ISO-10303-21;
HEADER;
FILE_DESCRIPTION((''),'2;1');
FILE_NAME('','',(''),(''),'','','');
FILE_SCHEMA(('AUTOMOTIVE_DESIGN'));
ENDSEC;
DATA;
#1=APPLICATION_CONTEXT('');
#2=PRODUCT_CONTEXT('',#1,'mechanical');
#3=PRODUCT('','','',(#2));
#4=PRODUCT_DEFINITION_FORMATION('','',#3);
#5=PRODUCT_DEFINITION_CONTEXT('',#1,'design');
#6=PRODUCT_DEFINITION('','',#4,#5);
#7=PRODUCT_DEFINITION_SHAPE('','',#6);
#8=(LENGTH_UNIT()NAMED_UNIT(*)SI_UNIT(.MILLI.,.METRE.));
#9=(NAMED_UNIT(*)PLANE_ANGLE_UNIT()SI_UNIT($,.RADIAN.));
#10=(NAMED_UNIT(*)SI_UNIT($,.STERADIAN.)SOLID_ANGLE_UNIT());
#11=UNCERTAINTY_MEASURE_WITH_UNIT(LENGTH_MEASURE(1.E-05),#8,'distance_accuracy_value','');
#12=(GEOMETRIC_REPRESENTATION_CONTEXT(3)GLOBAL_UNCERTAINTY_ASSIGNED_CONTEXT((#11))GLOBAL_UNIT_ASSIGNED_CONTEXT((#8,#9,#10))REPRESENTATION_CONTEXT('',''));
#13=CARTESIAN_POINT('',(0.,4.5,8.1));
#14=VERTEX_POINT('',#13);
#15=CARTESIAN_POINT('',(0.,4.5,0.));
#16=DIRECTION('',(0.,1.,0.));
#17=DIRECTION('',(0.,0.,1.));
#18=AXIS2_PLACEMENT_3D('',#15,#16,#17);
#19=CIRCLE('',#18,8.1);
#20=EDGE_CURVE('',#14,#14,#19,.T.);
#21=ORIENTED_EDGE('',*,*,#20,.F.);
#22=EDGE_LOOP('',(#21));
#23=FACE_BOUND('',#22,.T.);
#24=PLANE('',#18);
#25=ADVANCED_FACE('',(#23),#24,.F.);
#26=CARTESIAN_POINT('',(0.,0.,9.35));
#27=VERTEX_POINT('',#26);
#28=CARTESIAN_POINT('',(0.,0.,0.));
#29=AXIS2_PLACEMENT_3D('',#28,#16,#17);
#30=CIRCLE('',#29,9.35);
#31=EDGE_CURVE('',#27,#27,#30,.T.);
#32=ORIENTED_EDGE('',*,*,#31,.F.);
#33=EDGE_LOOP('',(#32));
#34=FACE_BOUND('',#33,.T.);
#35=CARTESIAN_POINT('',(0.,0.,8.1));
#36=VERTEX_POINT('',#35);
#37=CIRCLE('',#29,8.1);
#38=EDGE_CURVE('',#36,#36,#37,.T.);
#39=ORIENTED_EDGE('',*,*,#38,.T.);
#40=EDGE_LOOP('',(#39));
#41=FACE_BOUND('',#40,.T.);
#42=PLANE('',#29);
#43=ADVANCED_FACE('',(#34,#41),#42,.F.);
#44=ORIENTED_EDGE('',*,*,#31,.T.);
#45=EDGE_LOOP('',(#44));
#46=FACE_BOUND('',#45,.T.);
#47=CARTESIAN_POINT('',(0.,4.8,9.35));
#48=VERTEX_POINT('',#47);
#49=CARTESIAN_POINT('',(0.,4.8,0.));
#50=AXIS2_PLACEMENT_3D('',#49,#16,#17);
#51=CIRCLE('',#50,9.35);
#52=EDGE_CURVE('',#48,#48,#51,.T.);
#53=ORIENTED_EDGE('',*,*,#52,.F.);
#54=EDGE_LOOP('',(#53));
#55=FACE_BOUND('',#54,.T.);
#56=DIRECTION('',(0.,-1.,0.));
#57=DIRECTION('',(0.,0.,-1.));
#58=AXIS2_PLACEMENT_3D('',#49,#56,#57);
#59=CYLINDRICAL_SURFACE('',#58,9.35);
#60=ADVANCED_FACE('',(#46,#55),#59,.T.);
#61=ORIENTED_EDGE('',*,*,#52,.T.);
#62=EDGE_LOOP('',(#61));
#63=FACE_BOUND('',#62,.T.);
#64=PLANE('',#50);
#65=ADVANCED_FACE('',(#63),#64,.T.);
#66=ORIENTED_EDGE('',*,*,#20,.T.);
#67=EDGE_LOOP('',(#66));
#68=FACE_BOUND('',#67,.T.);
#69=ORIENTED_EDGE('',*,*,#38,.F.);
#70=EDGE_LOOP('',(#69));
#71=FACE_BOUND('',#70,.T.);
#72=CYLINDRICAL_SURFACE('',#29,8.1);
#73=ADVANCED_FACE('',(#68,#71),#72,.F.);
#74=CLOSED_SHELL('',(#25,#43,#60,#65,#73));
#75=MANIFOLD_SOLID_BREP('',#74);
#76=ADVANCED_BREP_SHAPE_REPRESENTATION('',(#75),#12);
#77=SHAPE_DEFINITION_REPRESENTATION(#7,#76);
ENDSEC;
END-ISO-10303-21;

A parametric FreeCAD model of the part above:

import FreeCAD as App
import Part
import Sketcher

doc = App.newDocument("Part")
body = doc.addObject("PartDesign::Body", "Body")

# Sketch on XZ plane
sketch1 = body.newObject("Sketcher::SketchObject", "Sketch")
sketch1.AttachmentSupport = (doc.getObject("XZ_Plane"), [""])
sketch1.MapMode = "FlatFace"
sketch1.addGeometry(Part.Circle(App.Vector(0, 0, 0), App.Vector(0, 0, 1), 9), False)
sketch1.addConstraint(Sketcher.Constraint("Coincident", 0, 3, -1, 1))
sketch1.addConstraint(Sketcher.Constraint("Diameter", 0, 18.7))
pad1 = body.newObject("PartDesign::Pad", "Pad")
pad1.Profile = sketch1
pad1.Length = 4.8
pad1.Reversed = True

# Sketch on XZ plane
sketch2 = body.newObject("Sketcher::SketchObject", "Sketch001")
sketch2.AttachmentSupport = (doc.getObject("XZ_Plane"), [""])
sketch2.MapMode = "FlatFace"
sketch2.AttachmentOffset = App.Placement(App.Vector(0, 0, -4.5), App.Rotation())
sketch2.addGeometry(Part.Circle(App.Vector(0, 0, 0), App.Vector(0, 0, 1), 8), False)
sketch2.addConstraint(Sketcher.Constraint("Coincident", 0, 3, -1, 1))
sketch2.addConstraint(Sketcher.Constraint("Diameter", 0, 16.2))
pocket1 = body.newObject("PartDesign::Pocket", "Pocket")
pocket1.Profile = sketch2
pocket1.Type = "ThroughAll"
pocket1.Reversed = True

doc.recompute()
